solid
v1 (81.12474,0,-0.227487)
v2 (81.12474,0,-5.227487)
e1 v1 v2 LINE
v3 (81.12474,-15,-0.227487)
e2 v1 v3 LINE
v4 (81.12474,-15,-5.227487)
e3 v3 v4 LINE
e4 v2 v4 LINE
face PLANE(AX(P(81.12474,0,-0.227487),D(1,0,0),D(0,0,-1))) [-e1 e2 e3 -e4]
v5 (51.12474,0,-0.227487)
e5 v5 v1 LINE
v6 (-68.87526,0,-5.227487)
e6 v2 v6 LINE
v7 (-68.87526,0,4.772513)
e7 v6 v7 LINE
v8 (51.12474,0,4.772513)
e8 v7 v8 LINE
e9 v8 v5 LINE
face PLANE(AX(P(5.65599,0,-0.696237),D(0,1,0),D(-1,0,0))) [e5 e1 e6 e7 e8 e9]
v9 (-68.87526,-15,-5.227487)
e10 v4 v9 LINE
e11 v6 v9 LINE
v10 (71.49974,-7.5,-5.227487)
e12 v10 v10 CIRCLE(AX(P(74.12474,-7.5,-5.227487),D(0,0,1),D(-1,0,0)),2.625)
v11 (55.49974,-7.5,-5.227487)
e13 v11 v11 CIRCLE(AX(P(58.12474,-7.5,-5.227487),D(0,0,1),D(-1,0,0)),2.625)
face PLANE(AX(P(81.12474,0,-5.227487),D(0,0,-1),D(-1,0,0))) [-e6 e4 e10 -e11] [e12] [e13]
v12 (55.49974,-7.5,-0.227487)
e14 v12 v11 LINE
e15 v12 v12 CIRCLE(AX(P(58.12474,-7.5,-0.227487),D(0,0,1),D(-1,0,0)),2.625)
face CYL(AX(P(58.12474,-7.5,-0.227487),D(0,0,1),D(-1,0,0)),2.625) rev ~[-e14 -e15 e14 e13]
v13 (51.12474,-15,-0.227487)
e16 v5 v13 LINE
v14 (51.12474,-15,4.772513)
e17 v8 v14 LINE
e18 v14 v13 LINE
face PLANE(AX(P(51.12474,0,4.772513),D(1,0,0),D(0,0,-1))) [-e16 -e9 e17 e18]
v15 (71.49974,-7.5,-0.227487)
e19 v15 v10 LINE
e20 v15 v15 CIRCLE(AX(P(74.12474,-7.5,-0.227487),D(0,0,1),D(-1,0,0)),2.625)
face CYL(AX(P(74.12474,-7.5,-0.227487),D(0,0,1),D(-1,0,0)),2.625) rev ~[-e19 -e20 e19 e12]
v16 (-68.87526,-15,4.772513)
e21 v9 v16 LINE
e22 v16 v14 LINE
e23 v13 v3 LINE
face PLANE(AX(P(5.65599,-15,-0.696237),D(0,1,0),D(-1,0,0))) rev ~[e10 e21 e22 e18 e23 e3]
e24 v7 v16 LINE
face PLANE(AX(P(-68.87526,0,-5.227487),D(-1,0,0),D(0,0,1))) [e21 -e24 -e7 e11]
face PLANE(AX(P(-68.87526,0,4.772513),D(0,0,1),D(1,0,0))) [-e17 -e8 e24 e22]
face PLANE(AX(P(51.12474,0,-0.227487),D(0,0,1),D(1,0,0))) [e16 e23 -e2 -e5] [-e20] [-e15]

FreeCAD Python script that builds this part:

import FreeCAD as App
import Part
import Sketcher

V = App.Vector
Q = App.Units.Quantity

doc = App.newDocument("Part")
params = doc.addObject("Spreadsheet::Sheet", "Params")
for row, (alias, value) in enumerate([
    ("sketch1_width", "150 mm"),
    ("sketch1_width2", "30 mm"),
    ("sketch1_height", "10 mm"),
    ("pad1_length", "15 mm"),
    ("sketch2_diameter", "5.25 mm"),
    ("pocket1_length", "5 mm"),
], start=1):
    params.set(f"A{row}", alias)
    params.set(f"B{row}", "=" + value)
    params.setAlias(f"B{row}", alias)

body = doc.addObject("PartDesign::Body", "Body")

# Sketch on XZ plane
sketch1 = body.newObject("Sketcher::SketchObject", "Sketch")
sketch1.AttachmentSupport = (doc.getObject("XZ_Plane"), [""])
sketch1.MapMode = "FlatFace"
sketch1.addGeometry([
    Part.LineSegment(V(-69, 5, 0), V(-69, -5, 0)),  # 0
    Part.LineSegment(V(-69, -5, 0), V(81, -5, 0)),  # 1
    Part.LineSegment(V(81, -5, 0), V(81, 0, 0)),  # 2
    Part.LineSegment(V(81, 0, 0), V(51, 0, 0)),  # 3
    Part.LineSegment(V(51, 0, 0), V(51, 5, 0)),  # 4
    Part.LineSegment(V(51, 5, 0), V(-69, 5, 0)),  # 5
], False)
sketch1.addConstraint([
    Sketcher.Constraint("Coincident", 0, 2, 1, 1),
    Sketcher.Constraint("Coincident", 1, 2, 2, 1),
    Sketcher.Constraint("Coincident", 2, 2, 3, 1),
    Sketcher.Constraint("Coincident", 3, 2, 4, 1),
    Sketcher.Constraint("Coincident", 4, 2, 5, 1),
    Sketcher.Constraint("Coincident", 5, 2, 0, 1),
    Sketcher.Constraint("Vertical", 0),
    Sketcher.Constraint("Horizontal", 1),
    Sketcher.Constraint("Vertical", 2),
    Sketcher.Constraint("Horizontal", 3),
    Sketcher.Constraint("Vertical", 4),
    Sketcher.Constraint("Horizontal", 5),
    Sketcher.Constraint("Equal", 2, 4),
    Sketcher.Constraint("DistanceX", 1, 1, 1, 2, Q("150 mm")),
    Sketcher.Constraint("DistanceX", 3, 2, 3, 1, Q("30 mm")),
    Sketcher.Constraint("DistanceY", 0, 2, 0, 1, Q("10 mm")),
    Sketcher.Constraint("DistanceX", 0, 2, -1, 1, Q("68.87526 mm")),
    Sketcher.Constraint("DistanceY", 0, 2, -1, 1, Q("5.227487 mm")),
])
sketch1.setExpression("Constraints[13]", "Params.sketch1_width")
sketch1.setExpression("Constraints[14]", "Params.sketch1_width2")
sketch1.setExpression("Constraints[15]", "Params.sketch1_height")
pad1 = body.newObject("PartDesign::Pad", "Pad")
pad1.Profile = sketch1
pad1.setExpression("Length", "Params.pad1_length")

# Sketch on XY plane
sketch2 = body.newObject("Sketcher::SketchObject", "Sketch001")
sketch2.AttachmentSupport = (doc.getObject("XY_Plane"), [""])
sketch2.MapMode = "FlatFace"
sketch2.AttachmentOffset = App.Placement(V(0, 0, -0.227487), App.Rotation())
sketch2.addGeometry([
    Part.Circle(V(74.1, -7.5, 0), V(0, 0, 1), 2.6),
    Part.Circle(V(58.1, -7.5, 0), V(0, 0, 1), 2.6),
], False)
sketch2.addConstraint([
    Sketcher.Constraint("Equal", 0, 1),
    Sketcher.Constraint("Horizontal", 0, 3, 1, 3),
    Sketcher.Constraint("Diameter", 0, Q("5.25 mm")),
    Sketcher.Constraint("DistanceX", 1, 3, 0, 3, Q("16 mm")),
    Sketcher.Constraint("DistanceY", 0, 3, -1, 1, Q("7.5 mm")),
    Sketcher.Constraint("DistanceX", -1, 1, 0, 3, Q("74.12474 mm")),
])
sketch2.setExpression("Constraints[2]", "Params.sketch2_diameter")
pocket1 = body.newObject("PartDesign::Pocket", "Pocket")
pocket1.Profile = sketch2
pocket1.setExpression("Length", "Params.pocket1_length")

doc.recompute()
